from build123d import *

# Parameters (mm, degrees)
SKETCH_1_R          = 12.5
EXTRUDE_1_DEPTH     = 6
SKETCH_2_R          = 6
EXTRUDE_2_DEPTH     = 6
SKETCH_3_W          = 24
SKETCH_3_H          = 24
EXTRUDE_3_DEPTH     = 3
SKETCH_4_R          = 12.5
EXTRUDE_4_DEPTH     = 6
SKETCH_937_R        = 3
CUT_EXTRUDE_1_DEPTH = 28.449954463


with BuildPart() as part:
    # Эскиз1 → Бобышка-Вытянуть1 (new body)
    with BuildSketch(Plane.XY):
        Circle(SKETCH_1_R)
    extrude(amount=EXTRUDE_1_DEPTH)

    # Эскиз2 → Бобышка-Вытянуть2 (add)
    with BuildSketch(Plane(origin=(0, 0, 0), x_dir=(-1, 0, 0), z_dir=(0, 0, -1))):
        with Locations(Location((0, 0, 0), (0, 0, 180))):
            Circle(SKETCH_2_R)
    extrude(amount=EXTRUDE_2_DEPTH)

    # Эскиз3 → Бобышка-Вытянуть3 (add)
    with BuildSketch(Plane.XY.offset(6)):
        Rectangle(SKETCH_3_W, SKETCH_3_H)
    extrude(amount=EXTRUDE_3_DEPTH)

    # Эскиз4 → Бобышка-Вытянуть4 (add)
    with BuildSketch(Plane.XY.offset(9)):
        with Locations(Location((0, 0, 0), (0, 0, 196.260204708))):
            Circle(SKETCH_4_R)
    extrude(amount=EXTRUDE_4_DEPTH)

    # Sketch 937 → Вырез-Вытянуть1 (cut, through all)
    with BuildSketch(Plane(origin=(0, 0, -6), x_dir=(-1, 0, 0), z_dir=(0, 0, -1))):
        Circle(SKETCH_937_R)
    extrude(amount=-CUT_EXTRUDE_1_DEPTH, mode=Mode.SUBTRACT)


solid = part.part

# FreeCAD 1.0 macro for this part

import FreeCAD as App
import Part
import Sketcher


def add_polygon(sketch, points):
    """Adds a closed chain of lines whose ends are joined by coincident constraints."""
    first, n = sketch.GeometryCount, len(points)
    for a, b in zip(points, points[1:] + points[:1]):
        sketch.addGeometry(Part.LineSegment(App.Vector(*a, 0), App.Vector(*b, 0)), False)
    for i in range(n):
        sketch.addConstraint(Sketcher.Constraint("Coincident", first + i, 2, first + (i + 1) % n, 1))

doc = App.newDocument("Part")
body = doc.addObject("PartDesign::Body", "Body")

# Sketch on XY plane
sketch1 = body.newObject("Sketcher::SketchObject", "Sketch")
sketch1.AttachmentSupport = (doc.getObject("XY_Plane"), [""])
sketch1.MapMode = "FlatFace"
sketch1.addGeometry(Part.Circle(App.Vector(0, 0, 0), App.Vector(0, 0, 1), 12), False)
sketch1.addConstraint([
    Sketcher.Constraint("Coincident", 0, 3, -1, 1),
    Sketcher.Constraint("Diameter", 0, 25.0),
])
pad1 = body.newObject("PartDesign::Pad", "Pad")
pad1.Profile = sketch1
pad1.Length = 6

# Sketch on XY plane
sketch2 = body.newObject("Sketcher::SketchObject", "Sketch001")
sketch2.AttachmentSupport = (doc.getObject("XY_Plane"), [""])
sketch2.MapMode = "FlatFace"
sketch2.addGeometry(Part.Circle(App.Vector(0, 0, 0), App.Vector(0, 0, 1), 6), False)
sketch2.addConstraint([
    Sketcher.Constraint("Coincident", 0, 3, -1, 1),
    Sketcher.Constraint("Diameter", 0, 12.0),
])
pad2 = body.newObject("PartDesign::Pad", "Pad001")
pad2.Profile = sketch2
pad2.Length = 6
pad2.Reversed = True

# Sketch on XY plane
sketch3 = body.newObject("Sketcher::SketchObject", "Sketch002")
sketch3.AttachmentSupport = (doc.getObject("XY_Plane"), [""])
sketch3.MapMode = "FlatFace"
sketch3.AttachmentOffset = App.Placement(App.Vector(0, 0, 6), App.Rotation())
add_polygon(sketch3, [(-12, 12), (-12, -12), (12, -12), (12, 12)])  # lines 0-3
sketch3.addConstraint([
    Sketcher.Constraint("Vertical", 0),
    Sketcher.Constraint("Horizontal", 1),
    Sketcher.Constraint("Vertical", 2),
    Sketcher.Constraint("Horizontal", 3),
    Sketcher.Constraint("Symmetric", 0, 2, 2, 2, -1, 1),
    Sketcher.Constraint("Equal", 3, 0),
    Sketcher.Constraint("DistanceX", 1, 1, 1, 2, 24.0),
])
pad3 = body.newObject("PartDesign::Pad", "Pad002")
pad3.Profile = sketch3
pad3.Length = 3

# Sketch on XY plane
sketch4 = body.newObject("Sketcher::SketchObject", "Sketch003")
sketch4.AttachmentSupport = (doc.getObject("XY_Plane"), [""])
sketch4.MapMode = "FlatFace"
sketch4.AttachmentOffset = App.Placement(App.Vector(0, 0, 9), App.Rotation())
sketch4.addGeometry(Part.Circle(App.Vector(0, 0, 0), App.Vector(0, 0, 1), 12), False)
sketch4.addConstraint([
    Sketcher.Constraint("Coincident", 0, 3, -1, 1),
    Sketcher.Constraint("Diameter", 0, 25.0),
])
pad4 = body.newObject("PartDesign::Pad", "Pad003")
pad4.Profile = sketch4
pad4.Length = 6

# Sketch on XY plane
sketch5 = body.newObject("Sketcher::SketchObject", "Sketch004")
sketch5.AttachmentSupport = (doc.getObject("XY_Plane"), [""])
sketch5.MapMode = "FlatFace"
sketch5.AttachmentOffset = App.Placement(App.Vector(0, 0, -6), App.Rotation())
sketch5.addGeometry(Part.Circle(App.Vector(0, 0, 0), App.Vector(0, 0, 1), 3), False)
sketch5.addConstraint([
    Sketcher.Constraint("Coincident", 0, 3, -1, 1),
    Sketcher.Constraint("Diameter", 0, 6.0),
])
pocket1 = body.newObject("PartDesign::Pocket", "Pocket")
pocket1.Profile = sketch5
pocket1.Type = "ThroughAll"
pocket1.Reversed = True

doc.recompute()
